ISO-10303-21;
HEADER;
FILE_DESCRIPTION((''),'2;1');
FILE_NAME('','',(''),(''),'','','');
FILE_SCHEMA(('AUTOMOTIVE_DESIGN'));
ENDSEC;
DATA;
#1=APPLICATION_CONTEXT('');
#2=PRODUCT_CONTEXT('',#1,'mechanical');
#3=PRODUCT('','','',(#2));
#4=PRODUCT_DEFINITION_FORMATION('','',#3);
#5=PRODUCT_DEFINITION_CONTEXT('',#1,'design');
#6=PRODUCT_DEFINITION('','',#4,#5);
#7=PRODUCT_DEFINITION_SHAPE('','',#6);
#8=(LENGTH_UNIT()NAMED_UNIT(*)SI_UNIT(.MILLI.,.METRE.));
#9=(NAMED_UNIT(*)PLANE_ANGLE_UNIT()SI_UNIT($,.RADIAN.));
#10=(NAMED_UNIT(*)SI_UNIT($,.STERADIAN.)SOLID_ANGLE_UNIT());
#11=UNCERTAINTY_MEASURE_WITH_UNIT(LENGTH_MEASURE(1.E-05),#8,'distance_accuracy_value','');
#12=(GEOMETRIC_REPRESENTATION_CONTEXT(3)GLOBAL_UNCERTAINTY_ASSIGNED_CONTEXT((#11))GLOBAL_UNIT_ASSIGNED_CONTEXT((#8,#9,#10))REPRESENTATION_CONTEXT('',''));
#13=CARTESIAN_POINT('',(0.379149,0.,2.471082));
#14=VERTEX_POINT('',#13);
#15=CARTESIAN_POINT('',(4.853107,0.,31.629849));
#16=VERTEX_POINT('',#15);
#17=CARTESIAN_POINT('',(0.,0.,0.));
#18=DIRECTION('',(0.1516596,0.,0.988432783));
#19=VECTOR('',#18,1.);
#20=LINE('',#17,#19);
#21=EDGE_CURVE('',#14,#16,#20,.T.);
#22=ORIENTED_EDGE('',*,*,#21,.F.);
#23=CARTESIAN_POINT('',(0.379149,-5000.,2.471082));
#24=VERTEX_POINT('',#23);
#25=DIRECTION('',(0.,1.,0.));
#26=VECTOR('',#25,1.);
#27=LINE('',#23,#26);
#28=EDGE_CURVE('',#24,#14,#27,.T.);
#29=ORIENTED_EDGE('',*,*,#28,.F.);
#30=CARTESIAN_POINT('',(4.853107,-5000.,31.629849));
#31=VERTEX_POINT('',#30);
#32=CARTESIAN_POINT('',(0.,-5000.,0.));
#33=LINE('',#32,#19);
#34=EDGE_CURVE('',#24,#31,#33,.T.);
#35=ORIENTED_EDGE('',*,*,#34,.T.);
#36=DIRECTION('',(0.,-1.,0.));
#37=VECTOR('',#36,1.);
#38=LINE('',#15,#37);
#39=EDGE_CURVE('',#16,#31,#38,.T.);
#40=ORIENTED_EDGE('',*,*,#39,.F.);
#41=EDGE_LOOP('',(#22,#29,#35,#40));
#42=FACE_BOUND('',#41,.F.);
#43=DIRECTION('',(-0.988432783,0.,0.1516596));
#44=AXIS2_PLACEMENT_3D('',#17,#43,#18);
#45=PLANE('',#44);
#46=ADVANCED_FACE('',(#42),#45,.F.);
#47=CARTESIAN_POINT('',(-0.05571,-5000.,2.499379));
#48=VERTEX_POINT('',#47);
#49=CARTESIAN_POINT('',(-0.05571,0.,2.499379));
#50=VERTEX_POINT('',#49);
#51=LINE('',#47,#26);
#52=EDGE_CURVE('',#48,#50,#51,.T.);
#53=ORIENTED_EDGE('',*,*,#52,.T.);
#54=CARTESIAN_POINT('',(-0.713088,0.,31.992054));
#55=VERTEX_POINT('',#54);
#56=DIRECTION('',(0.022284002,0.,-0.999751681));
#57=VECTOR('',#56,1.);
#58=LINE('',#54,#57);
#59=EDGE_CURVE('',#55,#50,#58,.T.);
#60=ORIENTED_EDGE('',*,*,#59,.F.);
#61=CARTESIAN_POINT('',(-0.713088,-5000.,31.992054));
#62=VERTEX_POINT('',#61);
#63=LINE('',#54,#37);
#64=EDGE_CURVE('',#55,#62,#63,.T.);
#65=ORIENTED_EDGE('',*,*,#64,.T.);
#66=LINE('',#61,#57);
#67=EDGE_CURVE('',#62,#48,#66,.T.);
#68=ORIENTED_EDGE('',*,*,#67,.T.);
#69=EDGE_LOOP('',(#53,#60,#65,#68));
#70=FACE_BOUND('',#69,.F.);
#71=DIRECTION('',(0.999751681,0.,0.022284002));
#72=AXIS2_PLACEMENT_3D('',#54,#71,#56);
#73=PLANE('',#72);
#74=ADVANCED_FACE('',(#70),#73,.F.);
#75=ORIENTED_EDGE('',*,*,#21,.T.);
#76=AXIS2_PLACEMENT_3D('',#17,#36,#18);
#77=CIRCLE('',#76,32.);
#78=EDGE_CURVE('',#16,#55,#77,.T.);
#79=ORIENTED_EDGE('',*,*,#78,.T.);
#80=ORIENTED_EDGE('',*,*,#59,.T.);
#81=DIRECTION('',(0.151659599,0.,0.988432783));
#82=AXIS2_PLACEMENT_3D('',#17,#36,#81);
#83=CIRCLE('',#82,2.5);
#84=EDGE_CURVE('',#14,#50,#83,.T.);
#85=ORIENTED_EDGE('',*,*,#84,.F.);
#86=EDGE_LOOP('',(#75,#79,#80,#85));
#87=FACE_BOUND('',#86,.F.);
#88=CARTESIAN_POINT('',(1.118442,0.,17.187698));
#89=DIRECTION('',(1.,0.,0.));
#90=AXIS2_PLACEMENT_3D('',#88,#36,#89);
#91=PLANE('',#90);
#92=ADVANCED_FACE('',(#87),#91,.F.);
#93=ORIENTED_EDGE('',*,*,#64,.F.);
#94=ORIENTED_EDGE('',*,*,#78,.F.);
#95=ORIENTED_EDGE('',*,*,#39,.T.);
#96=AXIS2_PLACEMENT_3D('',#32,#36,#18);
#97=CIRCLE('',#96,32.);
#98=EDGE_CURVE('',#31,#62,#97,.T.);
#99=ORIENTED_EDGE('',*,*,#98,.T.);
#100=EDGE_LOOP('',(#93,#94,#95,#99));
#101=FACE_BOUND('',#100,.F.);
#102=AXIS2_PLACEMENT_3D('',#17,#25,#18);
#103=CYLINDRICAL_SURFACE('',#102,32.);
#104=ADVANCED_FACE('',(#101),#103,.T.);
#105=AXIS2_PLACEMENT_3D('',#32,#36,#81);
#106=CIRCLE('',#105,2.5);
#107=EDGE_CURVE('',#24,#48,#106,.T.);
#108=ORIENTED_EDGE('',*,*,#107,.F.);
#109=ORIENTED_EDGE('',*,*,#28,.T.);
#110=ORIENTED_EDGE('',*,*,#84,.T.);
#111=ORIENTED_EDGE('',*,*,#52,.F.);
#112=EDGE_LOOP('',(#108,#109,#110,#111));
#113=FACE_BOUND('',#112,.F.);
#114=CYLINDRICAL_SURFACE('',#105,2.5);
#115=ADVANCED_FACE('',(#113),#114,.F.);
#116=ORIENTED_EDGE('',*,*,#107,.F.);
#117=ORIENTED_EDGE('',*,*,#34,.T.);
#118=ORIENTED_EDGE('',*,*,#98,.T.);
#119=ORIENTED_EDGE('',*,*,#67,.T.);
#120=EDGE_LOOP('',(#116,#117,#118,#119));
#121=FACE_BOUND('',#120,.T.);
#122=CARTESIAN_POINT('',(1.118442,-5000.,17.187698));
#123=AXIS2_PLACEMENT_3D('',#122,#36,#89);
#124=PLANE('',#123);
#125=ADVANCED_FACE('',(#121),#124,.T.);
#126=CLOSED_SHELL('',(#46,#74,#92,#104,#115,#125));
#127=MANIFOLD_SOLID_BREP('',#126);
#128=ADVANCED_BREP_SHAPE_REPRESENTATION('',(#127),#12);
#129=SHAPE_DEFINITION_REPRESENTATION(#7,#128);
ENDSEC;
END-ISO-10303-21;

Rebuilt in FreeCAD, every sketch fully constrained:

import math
import FreeCAD as App
import Part
import Sketcher
from FreeCAD import Vector
Q = App.Units.Quantity

doc = App.newDocument("Part")
body = doc.addObject("PartDesign::Body", "Body")

# Sketch on XZ plane
sketch1 = doc.addObject("Sketcher::SketchObject", "Sketch")
body.addObject(sketch1)
sketch1.AttachmentSupport = (doc.XZ_Plane, [""])
sketch1.MapMode = "FlatFace"
sketch1.addGeometry(Part.LineSegment(Vector(0, 0, 0), Vector(4.853107, 31.629849, 0)), False)
sketch1.addGeometry(Part.ArcOfCircle(Part.Circle(Vector(0, 0, 0), Vector(0, 0, 1), 32), math.radians(81.276885), math.radians(91.276885)), False)
sketch1.addGeometry(Part.LineSegment(Vector(-0.713088, 31.992054, 0), Vector(0, 0, 0)), False)
sketch1.addConstraint(Sketcher.Constraint("Coincident", 0, 2, 1, 1))
sketch1.addConstraint(Sketcher.Constraint("Coincident", 1, 2, 2, 1))
sketch1.addConstraint(Sketcher.Constraint("Coincident", 2, 2, 0, 1))
sketch1.addConstraint(Sketcher.Constraint("Coincident", 1, 3, -1, 1))
sketch1.addConstraint(Sketcher.Constraint("Coincident", 2, 2, -1, 1))
sketch1.addConstraint(Sketcher.Constraint("Radius", 1, Q("32 mm")))
sketch1.addConstraint(Sketcher.Constraint("DistanceY", -1, 1, 0, 2, Q("31.629849 mm")))
sketch1.addConstraint(Sketcher.Constraint("DistanceX", 1, 2, -1, 1, Q("0.713088 mm")))
pad1 = doc.addObject("PartDesign::Pad", "Pad")
body.addObject(pad1)
pad1.Profile = sketch1
pad1.Length = 5000

# Sketch on XZ plane
sketch2 = doc.addObject("Sketcher::SketchObject", "Sketch001")
body.addObject(sketch2)
sketch2.AttachmentSupport = (doc.XZ_Plane, [""])
sketch2.MapMode = "FlatFace"
sketch2.AttachmentOffset = App.Placement(Vector(0, 0, 5000), App.Rotation())
sketch2.addGeometry(Part.LineSegment(Vector(0, 0, 0), Vector(0.379149, 2.471082, 0)), False)
sketch2.addGeometry(Part.ArcOfCircle(Part.Circle(Vector(0, 0, 0), Vector(0, 0, 1), 2.5), math.radians(81.276885), math.radians(91.276885)), False)
sketch2.addGeometry(Part.LineSegment(Vector(-0.05571, 2.499379, 0), Vector(0, 0, 0)), False)
sketch2.addConstraint(Sketcher.Constraint("Coincident", 0, 2, 1, 1))
sketch2.addConstraint(Sketcher.Constraint("Coincident", 1, 2, 2, 1))
sketch2.addConstraint(Sketcher.Constraint("Coincident", 2, 2, 0, 1))
sketch2.addConstraint(Sketcher.Constraint("Coincident", 1, 3, -1, 1))
sketch2.addConstraint(Sketcher.Constraint("Coincident", 2, 2, -1, 1))
sketch2.addConstraint(Sketcher.Constraint("Radius", 1, Q("2.5 mm")))
sketch2.addConstraint(Sketcher.Constraint("DistanceX", -1, 1, 0, 2, Q("0.379149 mm")))
sketch2.addConstraint(Sketcher.Constraint("DistanceX", 1, 2, -1, 1, Q("0.05571 mm")))
pocket1 = doc.addObject("PartDesign::Pocket", "Pocket")
body.addObject(pocket1)
pocket1.Profile = sketch2
pocket1.Type = "ThroughAll"

doc.recompute()
